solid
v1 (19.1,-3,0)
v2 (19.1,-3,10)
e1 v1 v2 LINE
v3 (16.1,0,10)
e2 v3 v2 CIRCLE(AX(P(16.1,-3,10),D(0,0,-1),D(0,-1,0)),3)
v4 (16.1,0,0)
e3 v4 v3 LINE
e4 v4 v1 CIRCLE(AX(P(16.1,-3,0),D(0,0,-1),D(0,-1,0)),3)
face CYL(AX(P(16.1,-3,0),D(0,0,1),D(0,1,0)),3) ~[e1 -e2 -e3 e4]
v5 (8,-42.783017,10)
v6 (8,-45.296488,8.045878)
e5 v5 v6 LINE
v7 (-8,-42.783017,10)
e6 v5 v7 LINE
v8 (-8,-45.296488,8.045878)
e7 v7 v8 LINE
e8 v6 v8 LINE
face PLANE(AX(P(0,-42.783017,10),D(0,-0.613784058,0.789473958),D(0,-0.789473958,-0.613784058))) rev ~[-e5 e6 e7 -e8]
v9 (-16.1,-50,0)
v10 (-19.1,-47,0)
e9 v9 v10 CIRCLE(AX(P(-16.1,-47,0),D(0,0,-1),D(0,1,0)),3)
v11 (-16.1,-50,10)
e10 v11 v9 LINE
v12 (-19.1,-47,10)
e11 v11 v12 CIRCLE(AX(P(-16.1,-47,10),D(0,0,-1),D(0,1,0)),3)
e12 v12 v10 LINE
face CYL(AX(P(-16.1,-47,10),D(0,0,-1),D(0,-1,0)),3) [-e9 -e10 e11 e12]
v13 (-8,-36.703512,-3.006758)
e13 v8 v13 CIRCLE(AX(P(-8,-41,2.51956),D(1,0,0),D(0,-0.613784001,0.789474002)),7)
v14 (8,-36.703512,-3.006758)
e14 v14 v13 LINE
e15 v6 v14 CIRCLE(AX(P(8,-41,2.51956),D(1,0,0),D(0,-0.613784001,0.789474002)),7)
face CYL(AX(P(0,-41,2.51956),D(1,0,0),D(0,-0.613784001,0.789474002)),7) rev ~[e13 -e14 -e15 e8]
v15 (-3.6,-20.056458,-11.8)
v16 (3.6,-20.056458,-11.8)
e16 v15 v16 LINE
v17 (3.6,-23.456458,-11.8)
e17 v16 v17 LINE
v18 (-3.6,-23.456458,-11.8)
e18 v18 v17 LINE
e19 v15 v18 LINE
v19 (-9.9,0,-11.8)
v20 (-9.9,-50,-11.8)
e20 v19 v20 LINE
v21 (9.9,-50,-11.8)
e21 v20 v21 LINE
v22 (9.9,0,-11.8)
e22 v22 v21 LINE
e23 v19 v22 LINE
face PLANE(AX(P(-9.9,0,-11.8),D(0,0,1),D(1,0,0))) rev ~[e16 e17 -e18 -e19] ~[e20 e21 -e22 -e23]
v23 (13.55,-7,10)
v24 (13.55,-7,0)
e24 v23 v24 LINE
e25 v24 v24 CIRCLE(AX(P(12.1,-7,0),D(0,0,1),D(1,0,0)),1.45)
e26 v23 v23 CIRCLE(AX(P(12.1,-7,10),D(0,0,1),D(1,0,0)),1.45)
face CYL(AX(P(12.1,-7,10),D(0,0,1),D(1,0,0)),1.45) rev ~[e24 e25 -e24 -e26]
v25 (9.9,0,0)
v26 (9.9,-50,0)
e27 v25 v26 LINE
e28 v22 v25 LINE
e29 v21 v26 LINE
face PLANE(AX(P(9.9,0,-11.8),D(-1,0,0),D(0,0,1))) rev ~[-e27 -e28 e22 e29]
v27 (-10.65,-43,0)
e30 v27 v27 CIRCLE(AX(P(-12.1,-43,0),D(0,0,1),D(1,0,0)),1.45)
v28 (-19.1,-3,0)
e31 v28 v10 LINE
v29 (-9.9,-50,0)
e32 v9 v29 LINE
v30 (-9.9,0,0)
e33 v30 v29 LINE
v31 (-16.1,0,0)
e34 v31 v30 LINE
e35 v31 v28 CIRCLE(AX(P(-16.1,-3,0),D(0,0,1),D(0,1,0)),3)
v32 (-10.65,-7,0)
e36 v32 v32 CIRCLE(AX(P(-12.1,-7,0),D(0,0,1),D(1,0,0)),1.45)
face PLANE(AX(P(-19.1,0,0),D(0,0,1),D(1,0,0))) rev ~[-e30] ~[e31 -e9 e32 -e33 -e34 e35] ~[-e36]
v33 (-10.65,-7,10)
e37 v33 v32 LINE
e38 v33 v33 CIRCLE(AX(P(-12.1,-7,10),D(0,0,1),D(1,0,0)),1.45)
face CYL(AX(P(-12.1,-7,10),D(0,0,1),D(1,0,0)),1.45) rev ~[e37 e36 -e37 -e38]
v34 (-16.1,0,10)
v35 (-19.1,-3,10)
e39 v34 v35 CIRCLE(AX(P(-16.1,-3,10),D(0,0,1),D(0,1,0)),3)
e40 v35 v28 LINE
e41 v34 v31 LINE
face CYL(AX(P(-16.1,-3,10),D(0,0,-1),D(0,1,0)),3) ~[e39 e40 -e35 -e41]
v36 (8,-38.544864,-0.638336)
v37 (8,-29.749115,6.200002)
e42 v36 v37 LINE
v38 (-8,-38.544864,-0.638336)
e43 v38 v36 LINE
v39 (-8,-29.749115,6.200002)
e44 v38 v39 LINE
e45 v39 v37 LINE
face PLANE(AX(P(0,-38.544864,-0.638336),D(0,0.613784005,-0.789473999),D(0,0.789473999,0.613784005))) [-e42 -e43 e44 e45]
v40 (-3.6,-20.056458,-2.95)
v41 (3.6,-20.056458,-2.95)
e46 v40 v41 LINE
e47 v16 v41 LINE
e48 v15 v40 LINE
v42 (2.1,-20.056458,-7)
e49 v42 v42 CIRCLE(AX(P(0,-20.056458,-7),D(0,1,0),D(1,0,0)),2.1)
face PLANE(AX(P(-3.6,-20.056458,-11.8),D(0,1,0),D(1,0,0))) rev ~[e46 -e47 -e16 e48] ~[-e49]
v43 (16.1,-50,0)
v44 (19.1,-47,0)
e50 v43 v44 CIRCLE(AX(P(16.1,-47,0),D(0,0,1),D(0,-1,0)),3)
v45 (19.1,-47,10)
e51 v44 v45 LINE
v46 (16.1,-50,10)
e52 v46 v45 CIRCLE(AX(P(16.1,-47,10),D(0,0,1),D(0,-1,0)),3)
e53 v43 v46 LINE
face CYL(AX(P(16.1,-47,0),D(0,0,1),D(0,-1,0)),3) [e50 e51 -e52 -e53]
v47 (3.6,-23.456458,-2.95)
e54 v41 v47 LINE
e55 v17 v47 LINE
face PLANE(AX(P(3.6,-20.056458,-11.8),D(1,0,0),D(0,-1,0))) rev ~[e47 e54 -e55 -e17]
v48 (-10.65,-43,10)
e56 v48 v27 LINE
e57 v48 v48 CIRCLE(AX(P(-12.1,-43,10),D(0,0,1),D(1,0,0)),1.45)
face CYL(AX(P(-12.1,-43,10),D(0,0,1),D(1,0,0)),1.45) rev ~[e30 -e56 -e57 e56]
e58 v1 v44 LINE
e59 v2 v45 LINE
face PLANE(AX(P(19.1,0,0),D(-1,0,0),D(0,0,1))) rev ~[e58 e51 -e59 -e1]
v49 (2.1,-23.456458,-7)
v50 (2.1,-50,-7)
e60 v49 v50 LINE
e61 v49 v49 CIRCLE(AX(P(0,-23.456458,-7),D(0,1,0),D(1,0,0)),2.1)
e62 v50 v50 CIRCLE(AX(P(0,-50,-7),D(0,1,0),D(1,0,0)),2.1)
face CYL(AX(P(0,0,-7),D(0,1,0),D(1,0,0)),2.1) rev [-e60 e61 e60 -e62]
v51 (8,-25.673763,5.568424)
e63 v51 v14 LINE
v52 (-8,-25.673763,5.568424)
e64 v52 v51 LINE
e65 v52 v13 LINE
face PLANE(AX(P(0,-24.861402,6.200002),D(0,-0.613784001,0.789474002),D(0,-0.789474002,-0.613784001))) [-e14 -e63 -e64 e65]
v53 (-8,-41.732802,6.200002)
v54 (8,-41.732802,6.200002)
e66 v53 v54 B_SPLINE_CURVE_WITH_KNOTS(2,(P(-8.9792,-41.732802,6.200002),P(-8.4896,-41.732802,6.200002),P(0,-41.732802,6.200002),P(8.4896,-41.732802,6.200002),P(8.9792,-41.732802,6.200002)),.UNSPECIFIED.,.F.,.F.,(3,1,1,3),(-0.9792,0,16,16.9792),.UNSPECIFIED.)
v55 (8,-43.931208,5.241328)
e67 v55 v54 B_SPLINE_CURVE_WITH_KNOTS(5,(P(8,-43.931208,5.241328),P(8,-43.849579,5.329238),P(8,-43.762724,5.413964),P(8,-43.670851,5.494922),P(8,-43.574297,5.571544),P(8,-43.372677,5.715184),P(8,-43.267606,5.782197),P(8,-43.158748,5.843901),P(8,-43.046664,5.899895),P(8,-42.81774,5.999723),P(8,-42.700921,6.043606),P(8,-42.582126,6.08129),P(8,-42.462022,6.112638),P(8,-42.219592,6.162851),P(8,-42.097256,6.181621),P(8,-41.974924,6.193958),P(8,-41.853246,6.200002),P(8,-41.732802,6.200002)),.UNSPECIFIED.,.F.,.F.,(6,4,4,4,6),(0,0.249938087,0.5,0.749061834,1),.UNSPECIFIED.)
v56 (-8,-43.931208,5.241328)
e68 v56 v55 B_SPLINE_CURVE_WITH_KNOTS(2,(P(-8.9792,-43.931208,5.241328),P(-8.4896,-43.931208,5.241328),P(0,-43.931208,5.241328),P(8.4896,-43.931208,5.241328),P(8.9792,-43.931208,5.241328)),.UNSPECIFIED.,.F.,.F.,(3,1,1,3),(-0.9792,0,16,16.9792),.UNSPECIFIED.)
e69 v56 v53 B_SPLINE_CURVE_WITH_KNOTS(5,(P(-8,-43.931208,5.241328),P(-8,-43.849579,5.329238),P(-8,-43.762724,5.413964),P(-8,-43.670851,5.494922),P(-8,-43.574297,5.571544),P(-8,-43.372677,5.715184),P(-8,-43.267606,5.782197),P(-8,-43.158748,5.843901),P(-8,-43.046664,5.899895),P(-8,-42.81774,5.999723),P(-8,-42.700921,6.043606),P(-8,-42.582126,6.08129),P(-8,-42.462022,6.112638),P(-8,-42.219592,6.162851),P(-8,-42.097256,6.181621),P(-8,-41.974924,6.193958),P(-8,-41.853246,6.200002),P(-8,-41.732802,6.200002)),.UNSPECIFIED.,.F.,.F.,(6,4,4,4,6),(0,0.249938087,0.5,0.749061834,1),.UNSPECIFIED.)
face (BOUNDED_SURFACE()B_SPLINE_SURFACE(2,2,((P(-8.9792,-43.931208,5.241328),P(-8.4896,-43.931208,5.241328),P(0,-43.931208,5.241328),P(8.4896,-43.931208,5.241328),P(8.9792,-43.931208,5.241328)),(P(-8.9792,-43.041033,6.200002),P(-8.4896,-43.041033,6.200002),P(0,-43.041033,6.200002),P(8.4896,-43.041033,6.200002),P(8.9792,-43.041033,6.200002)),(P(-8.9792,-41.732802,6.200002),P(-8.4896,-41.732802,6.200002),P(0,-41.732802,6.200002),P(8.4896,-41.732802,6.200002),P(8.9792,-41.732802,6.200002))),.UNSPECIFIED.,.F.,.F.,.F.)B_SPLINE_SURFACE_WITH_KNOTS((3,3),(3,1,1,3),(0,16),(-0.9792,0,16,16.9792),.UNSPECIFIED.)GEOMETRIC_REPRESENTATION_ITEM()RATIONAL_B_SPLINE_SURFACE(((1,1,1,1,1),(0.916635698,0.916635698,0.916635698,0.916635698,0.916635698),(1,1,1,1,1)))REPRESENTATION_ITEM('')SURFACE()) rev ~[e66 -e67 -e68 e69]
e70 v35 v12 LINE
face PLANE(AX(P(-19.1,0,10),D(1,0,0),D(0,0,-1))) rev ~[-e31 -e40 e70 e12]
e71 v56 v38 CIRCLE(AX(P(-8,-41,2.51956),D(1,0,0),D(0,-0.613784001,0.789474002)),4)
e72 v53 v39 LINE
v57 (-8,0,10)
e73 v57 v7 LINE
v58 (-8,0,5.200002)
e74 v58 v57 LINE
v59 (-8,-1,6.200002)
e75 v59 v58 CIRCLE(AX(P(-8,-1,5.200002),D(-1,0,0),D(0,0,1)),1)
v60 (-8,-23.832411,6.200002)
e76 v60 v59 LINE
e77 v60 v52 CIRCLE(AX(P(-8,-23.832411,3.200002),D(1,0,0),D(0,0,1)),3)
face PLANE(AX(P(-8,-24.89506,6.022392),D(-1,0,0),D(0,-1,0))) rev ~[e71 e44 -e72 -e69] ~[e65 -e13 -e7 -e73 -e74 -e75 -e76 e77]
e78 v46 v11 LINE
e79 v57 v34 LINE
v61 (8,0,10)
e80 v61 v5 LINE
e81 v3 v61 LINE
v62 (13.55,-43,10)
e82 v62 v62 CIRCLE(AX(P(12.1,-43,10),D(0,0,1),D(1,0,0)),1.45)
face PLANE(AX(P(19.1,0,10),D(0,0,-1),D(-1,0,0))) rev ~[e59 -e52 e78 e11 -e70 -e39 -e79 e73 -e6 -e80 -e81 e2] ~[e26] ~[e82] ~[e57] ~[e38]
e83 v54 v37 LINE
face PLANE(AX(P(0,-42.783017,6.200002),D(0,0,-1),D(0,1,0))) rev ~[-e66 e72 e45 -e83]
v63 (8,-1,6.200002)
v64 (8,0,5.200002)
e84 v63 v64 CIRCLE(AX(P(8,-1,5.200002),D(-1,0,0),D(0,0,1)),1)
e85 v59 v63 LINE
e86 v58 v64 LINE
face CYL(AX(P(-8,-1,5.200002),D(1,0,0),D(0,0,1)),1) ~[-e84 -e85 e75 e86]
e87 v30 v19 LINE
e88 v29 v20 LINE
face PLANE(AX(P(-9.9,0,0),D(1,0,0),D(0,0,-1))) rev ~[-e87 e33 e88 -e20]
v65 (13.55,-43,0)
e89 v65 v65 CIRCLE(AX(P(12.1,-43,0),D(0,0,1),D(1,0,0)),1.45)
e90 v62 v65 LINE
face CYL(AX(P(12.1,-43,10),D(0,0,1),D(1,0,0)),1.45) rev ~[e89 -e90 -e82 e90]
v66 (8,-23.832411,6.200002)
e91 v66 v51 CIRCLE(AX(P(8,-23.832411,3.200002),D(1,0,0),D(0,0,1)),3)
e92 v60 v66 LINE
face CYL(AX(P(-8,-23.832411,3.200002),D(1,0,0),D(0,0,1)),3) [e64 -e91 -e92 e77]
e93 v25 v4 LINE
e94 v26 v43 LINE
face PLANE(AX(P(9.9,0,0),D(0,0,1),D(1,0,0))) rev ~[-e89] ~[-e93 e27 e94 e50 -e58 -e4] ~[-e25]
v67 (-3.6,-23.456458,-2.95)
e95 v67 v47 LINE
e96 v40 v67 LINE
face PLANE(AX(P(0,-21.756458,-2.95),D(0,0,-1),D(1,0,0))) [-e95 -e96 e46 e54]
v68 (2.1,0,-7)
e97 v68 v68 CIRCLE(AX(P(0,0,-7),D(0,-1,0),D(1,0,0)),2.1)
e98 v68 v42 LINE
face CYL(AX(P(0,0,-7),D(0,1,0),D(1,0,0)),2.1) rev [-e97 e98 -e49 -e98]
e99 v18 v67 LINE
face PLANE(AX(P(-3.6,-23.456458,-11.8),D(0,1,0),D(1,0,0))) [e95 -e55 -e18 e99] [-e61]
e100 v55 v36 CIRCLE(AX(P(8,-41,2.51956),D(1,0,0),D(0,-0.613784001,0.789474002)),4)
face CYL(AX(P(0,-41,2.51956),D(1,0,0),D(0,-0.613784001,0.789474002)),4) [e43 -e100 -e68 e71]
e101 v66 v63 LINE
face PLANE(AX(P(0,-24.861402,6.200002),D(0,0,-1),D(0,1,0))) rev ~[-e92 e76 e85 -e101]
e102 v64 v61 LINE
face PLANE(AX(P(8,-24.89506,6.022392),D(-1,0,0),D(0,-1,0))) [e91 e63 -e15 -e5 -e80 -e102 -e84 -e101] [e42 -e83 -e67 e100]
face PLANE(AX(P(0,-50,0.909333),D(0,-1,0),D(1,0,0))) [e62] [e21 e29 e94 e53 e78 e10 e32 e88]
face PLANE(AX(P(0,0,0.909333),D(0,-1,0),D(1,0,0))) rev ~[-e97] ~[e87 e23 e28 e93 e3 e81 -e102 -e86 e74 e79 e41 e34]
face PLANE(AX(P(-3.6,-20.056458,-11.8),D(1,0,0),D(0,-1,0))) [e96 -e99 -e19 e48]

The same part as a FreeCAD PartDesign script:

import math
import FreeCAD as App
import Part
import Sketcher
from FreeCAD import Vector


def edges_at(feature, points):
    """Names of the edges that pass closest to the given points."""
    edges = feature.Shape.Edges
    near = lambda p: min(range(len(edges)), key=lambda i: edges[i].distToShape(Part.Vertex(*p))[0])
    return sorted({f"Edge{near(p) + 1}" for p in points})

doc = App.newDocument("Part")
body = doc.addObject("PartDesign::Body", "Body")

# Sketch on XZ plane
sketch1 = body.newObject("Sketcher::SketchObject", "Sketch")
sketch1.AttachmentSupport = (doc.getObject("XZ_Plane"), [""])
sketch1.MapMode = "FlatFace"
sketch1.addGeometry([
    Part.LineSegment(Vector(-9.9, -11.8, 0), Vector(9.9, -11.8, 0)),  # 0
    Part.LineSegment(Vector(9.9, -11.8, 0), Vector(9.9, 0, 0)),  # 1
    Part.LineSegment(Vector(9.9, 0, 0), Vector(19.1, 0, 0)),  # 2
    Part.LineSegment(Vector(19.1, 0, 0), Vector(19.1, 10, 0)),  # 3
    Part.LineSegment(Vector(19.1, 10, 0), Vector(-19.1, 10, 0)),  # 4
    Part.LineSegment(Vector(-19.1, 10, 0), Vector(-19.1, 0, 0)),  # 5
    Part.LineSegment(Vector(-19.1, 0, 0), Vector(-9.9, 0, 0)),  # 6
    Part.LineSegment(Vector(-9.9, 0, 0), Vector(-9.9, -11.8, 0)),  # 7
], False)
sketch1.addConstraint([
    Sketcher.Constraint("Coincident", 0, 2, 1, 1),
    Sketcher.Constraint("Coincident", 1, 2, 2, 1),
    Sketcher.Constraint("Coincident", 2, 2, 3, 1),
    Sketcher.Constraint("Coincident", 3, 2, 4, 1),
    Sketcher.Constraint("Coincident", 4, 2, 5, 1),
    Sketcher.Constraint("Coincident", 5, 2, 6, 1),
    Sketcher.Constraint("Coincident", 6, 2, 7, 1),
    Sketcher.Constraint("Coincident", 7, 2, 0, 1),
    Sketcher.Constraint("Horizontal", 0),
    Sketcher.Constraint("Vertical", 1),
    Sketcher.Constraint("Horizontal", 2),
    Sketcher.Constraint("Vertical", 3),
    Sketcher.Constraint("Horizontal", 4),
    Sketcher.Constraint("Vertical", 5),
    Sketcher.Constraint("Horizontal", 6),
    Sketcher.Constraint("Vertical", 7),
    Sketcher.Constraint("Symmetric", 2, 2, 5, 2, -1, 1),
    Sketcher.Constraint("Symmetric", 1, 2, 6, 2, -2),
    Sketcher.Constraint("DistanceY", 3, 1, 3, 2, 10.0),
    Sketcher.Constraint("DistanceX", 0, 1, 0, 2, 19.8),
    Sketcher.Constraint("DistanceX", 2, 1, 2, 2, 9.2),
    Sketcher.Constraint("DistanceY", 1, 1, 1, 2, 11.8),
])
pad1 = body.newObject("PartDesign::Pad", "Pad")
pad1.Profile = sketch1
pad1.Length = 50

# Sketch on XZ plane
sketch2 = body.newObject("Sketcher::SketchObject", "Sketch001")
sketch2.AttachmentSupport = (doc.getObject("XZ_Plane"), [""])
sketch2.MapMode = "FlatFace"
sketch2.addGeometry(Part.Circle(Vector(0, -7, 0), Vector(0, 0, 1), 2.1), False)
sketch2.addConstraint([
    Sketcher.Constraint("PointOnObject", 0, 3, -2),
    Sketcher.Constraint("Diameter", 0, 4.2),
    Sketcher.Constraint("DistanceY", 0, 3, -1, 1, 7.0),
])
pocket1 = body.newObject("PartDesign::Pocket", "Pocket")
pocket1.Profile = sketch2
pocket1.Type = "ThroughAll"
pocket1.Reversed = True

# Sketch on YZ plane
sketch3 = body.newObject("Sketcher::SketchObject", "Sketch002")
sketch3.AttachmentSupport = (doc.getObject("YZ_Plane"), [""])
sketch3.MapMode = "FlatFace"
sketch3.addGeometry([
    Part.LineSegment(Vector(-36.703512, -3.006758, 0), Vector(-24.861402, 6.200002, 0)),  # 0
    Part.LineSegment(Vector(-24.861402, 6.200002, 0), Vector(0.003511, 6.200002, 0)),  # 1
    Part.LineSegment(Vector(0.003511, 6.200002, 0), Vector(0, 10, 0)),  # 2
    Part.LineSegment(Vector(0, 10, 0), Vector(-42.783017, 10, 0)),  # 3
    Part.LineSegment(Vector(-42.783017, 10, 0), Vector(-45.296488, 8.045878, 0)),  # 4
    Part.ArcOfCircle(Part.Circle(Vector(-41, 2.51956, 0), Vector(0, 0, 1), 7), math.radians(127.863617), math.radians(307.863617)),  # 5
    Part.LineSegment(Vector(-43.455136, 5.677456, 0), Vector(-42.783017, 6.200002, 0)),  # 6
    Part.LineSegment(Vector(-42.783017, 6.200002, 0), Vector(-29.749115, 6.200002, 0)),  # 7
    Part.LineSegment(Vector(-29.749115, 6.200002, 0), Vector(-38.544864, -0.638336, 0)),  # 8
    Part.ArcOfCircle(Part.Circle(Vector(-41, 2.51956, 0), Vector(0, 0, 1), 4), math.radians(127.863617), math.radians(307.863617)),  # 9
], False)
sketch3.addConstraint([
    Sketcher.Constraint("Coincident", 0, 2, 1, 1),
    Sketcher.Constraint("Coincident", 1, 2, 2, 1),
    Sketcher.Constraint("Coincident", 2, 2, 3, 1),
    Sketcher.Constraint("Coincident", 3, 2, 4, 1),
    Sketcher.Constraint("Tangent", 4, 2, 5, 1),
    Sketcher.Constraint("Tangent", 5, 2, 0, 1),
    Sketcher.Constraint("Coincident", 6, 2, 7, 1),
    Sketcher.Constraint("Coincident", 7, 2, 8, 1),
    Sketcher.Constraint("Tangent", 8, 2, 9, 2),
    Sketcher.Constraint("Tangent", 9, 1, 6, 1),
    Sketcher.Constraint("Horizontal", 1),
    Sketcher.Constraint("Horizontal", 3),
    Sketcher.Constraint("Horizontal", 7),
    Sketcher.Constraint("Coincident", 9, 3, 5, 3),
    Sketcher.Constraint("PointOnObject", 2, 2, -2),
    Sketcher.Constraint("Parallel", 0, 4),
    Sketcher.Constraint("Parallel", 4, 6),
    Sketcher.Constraint("Parallel", 6, 8),
    Sketcher.Constraint("Horizontal", 1, 2, 6, 2),
    Sketcher.Constraint("Vertical", 3, 2, 6, 2),
    Sketcher.Constraint("Radius", 5, 7.0),
    Sketcher.Constraint("Radius", 9, 4.0),
    Sketcher.Constraint("Distance", 0, 15.0),
    Sketcher.Constraint("DistanceX", 5, 3, -1, 1, 41.0),
    Sketcher.Constraint("DistanceY", -1, 1, 2, 2, 10.0),
    Sketcher.Constraint("Distance", 2, 3.8),
    Sketcher.Constraint("DistanceX", 4, 2, 1, 2, 45.299999),
])
pocket2 = body.newObject("PartDesign::Pocket", "Pocket001")
pocket2.Profile = sketch3
pocket2.Length = 16
pocket2.Midplane = True

# Sketch on XY plane
sketch4 = body.newObject("Sketcher::SketchObject", "Sketch003")
sketch4.AttachmentSupport = (doc.getObject("XY_Plane"), [""])
sketch4.MapMode = "FlatFace"
sketch4.AttachmentOffset = App.Placement(Vector(0, 0, -11.8), App.Rotation())
sketch4.addGeometry([
    Part.LineSegment(Vector(-3.6, -23.456458, 0), Vector(-3.6, -20.056458, 0)),
    Part.LineSegment(Vector(-3.6, -20.056458, 0), Vector(3.6, -20.056458, 0)),
    Part.LineSegment(Vector(3.6, -20.056458, 0), Vector(3.6, -23.456458, 0)),
    Part.LineSegment(Vector(3.6, -23.456458, 0), Vector(-3.6, -23.456458, 0)),
], False)
sketch4.addConstraint([
    Sketcher.Constraint("Coincident", 0, 2, 1, 1),
    Sketcher.Constraint("Coincident", 1, 2, 2, 1),
    Sketcher.Constraint("Coincident", 2, 2, 3, 1),
    Sketcher.Constraint("Coincident", 3, 2, 0, 1),
    Sketcher.Constraint("Vertical", 0),
    Sketcher.Constraint("Horizontal", 1),
    Sketcher.Constraint("Vertical", 2),
    Sketcher.Constraint("Horizontal", 3),
    Sketcher.Constraint("DistanceX", 1, 1, 1, 2, 7.2),
    Sketcher.Constraint("DistanceY", 0, 1, 0, 2, 3.4),
    Sketcher.Constraint("DistanceX", 0, 2, -1, 1, 3.6),
    Sketcher.Constraint("DistanceY", 2, 2, -1, 1, 23.456458),
])
pocket3 = body.newObject("PartDesign::Pocket", "Pocket002")
pocket3.Profile = sketch4
pocket3.Length = 8.85
pocket3.Reversed = True

# Sketch on XY plane
sketch5 = body.newObject("Sketcher::SketchObject", "Sketch004")
sketch5.AttachmentSupport = (doc.getObject("XY_Plane"), [""])
sketch5.MapMode = "FlatFace"
sketch5.AttachmentOffset = App.Placement(Vector(0, 0, 10), App.Rotation())
sketch5.addGeometry([
    Part.Circle(Vector(-12.1, -7, 0), Vector(0, 0, 1), 1.45),
    Part.Circle(Vector(12.1, -7, 0), Vector(0, 0, 1), 1.45),
    Part.Circle(Vector(12.1, -43, 0), Vector(0, 0, 1), 1.45),
    Part.Circle(Vector(-12.1, -43, 0), Vector(0, 0, 1), 1.45),
], False)
sketch5.addConstraint([
    Sketcher.Constraint("Equal", 0, 1),
    Sketcher.Constraint("Equal", 1, 2),
    Sketcher.Constraint("Equal", 2, 3),
    Sketcher.Constraint("Symmetric", 0, 3, 1, 3, -2),
    Sketcher.Constraint("Symmetric", 2, 3, 3, 3, -2),
    Sketcher.Constraint("Vertical", 1, 3, 2, 3),
    Sketcher.Constraint("Diameter", 0, 2.9),
    Sketcher.Constraint("DistanceY", 0, 3, -1, 1, 7.0),
    Sketcher.Constraint("DistanceY", 2, 3, -1, 1, 43.0),
    Sketcher.Constraint("DistanceX", 0, 3, -1, 1, 12.1),
])
pocket4 = body.newObject("PartDesign::Pocket", "Pocket003")
pocket4.Profile = sketch5
pocket4.Type = "ThroughAll"
doc.recompute()

fillet = body.newObject("PartDesign::Fillet", "Fillet")
fillet.Base = (pocket4, edges_at(pocket4, [
    (19.1, -50, 5),
    (19.1, 0, 5),
    (-19.1, -50, 5),
    (-19.1, 0, 5),
]))
fillet.Radius = 3
doc.recompute()

fillet2 = body.newObject("PartDesign::Fillet", "Fillet001")
fillet2.Base = (fillet, edges_at(fillet, [(0, -42.783, 6.2), (0, -24.861, 6.2)]))
fillet2.Radius = 3
doc.recompute()

fillet3 = body.newObject("PartDesign::Fillet", "Fillet002")
fillet3.Base = (fillet2, edges_at(fillet2, [(0, 0, 6.2)]))
fillet3.Radius = 1

doc.recompute()
